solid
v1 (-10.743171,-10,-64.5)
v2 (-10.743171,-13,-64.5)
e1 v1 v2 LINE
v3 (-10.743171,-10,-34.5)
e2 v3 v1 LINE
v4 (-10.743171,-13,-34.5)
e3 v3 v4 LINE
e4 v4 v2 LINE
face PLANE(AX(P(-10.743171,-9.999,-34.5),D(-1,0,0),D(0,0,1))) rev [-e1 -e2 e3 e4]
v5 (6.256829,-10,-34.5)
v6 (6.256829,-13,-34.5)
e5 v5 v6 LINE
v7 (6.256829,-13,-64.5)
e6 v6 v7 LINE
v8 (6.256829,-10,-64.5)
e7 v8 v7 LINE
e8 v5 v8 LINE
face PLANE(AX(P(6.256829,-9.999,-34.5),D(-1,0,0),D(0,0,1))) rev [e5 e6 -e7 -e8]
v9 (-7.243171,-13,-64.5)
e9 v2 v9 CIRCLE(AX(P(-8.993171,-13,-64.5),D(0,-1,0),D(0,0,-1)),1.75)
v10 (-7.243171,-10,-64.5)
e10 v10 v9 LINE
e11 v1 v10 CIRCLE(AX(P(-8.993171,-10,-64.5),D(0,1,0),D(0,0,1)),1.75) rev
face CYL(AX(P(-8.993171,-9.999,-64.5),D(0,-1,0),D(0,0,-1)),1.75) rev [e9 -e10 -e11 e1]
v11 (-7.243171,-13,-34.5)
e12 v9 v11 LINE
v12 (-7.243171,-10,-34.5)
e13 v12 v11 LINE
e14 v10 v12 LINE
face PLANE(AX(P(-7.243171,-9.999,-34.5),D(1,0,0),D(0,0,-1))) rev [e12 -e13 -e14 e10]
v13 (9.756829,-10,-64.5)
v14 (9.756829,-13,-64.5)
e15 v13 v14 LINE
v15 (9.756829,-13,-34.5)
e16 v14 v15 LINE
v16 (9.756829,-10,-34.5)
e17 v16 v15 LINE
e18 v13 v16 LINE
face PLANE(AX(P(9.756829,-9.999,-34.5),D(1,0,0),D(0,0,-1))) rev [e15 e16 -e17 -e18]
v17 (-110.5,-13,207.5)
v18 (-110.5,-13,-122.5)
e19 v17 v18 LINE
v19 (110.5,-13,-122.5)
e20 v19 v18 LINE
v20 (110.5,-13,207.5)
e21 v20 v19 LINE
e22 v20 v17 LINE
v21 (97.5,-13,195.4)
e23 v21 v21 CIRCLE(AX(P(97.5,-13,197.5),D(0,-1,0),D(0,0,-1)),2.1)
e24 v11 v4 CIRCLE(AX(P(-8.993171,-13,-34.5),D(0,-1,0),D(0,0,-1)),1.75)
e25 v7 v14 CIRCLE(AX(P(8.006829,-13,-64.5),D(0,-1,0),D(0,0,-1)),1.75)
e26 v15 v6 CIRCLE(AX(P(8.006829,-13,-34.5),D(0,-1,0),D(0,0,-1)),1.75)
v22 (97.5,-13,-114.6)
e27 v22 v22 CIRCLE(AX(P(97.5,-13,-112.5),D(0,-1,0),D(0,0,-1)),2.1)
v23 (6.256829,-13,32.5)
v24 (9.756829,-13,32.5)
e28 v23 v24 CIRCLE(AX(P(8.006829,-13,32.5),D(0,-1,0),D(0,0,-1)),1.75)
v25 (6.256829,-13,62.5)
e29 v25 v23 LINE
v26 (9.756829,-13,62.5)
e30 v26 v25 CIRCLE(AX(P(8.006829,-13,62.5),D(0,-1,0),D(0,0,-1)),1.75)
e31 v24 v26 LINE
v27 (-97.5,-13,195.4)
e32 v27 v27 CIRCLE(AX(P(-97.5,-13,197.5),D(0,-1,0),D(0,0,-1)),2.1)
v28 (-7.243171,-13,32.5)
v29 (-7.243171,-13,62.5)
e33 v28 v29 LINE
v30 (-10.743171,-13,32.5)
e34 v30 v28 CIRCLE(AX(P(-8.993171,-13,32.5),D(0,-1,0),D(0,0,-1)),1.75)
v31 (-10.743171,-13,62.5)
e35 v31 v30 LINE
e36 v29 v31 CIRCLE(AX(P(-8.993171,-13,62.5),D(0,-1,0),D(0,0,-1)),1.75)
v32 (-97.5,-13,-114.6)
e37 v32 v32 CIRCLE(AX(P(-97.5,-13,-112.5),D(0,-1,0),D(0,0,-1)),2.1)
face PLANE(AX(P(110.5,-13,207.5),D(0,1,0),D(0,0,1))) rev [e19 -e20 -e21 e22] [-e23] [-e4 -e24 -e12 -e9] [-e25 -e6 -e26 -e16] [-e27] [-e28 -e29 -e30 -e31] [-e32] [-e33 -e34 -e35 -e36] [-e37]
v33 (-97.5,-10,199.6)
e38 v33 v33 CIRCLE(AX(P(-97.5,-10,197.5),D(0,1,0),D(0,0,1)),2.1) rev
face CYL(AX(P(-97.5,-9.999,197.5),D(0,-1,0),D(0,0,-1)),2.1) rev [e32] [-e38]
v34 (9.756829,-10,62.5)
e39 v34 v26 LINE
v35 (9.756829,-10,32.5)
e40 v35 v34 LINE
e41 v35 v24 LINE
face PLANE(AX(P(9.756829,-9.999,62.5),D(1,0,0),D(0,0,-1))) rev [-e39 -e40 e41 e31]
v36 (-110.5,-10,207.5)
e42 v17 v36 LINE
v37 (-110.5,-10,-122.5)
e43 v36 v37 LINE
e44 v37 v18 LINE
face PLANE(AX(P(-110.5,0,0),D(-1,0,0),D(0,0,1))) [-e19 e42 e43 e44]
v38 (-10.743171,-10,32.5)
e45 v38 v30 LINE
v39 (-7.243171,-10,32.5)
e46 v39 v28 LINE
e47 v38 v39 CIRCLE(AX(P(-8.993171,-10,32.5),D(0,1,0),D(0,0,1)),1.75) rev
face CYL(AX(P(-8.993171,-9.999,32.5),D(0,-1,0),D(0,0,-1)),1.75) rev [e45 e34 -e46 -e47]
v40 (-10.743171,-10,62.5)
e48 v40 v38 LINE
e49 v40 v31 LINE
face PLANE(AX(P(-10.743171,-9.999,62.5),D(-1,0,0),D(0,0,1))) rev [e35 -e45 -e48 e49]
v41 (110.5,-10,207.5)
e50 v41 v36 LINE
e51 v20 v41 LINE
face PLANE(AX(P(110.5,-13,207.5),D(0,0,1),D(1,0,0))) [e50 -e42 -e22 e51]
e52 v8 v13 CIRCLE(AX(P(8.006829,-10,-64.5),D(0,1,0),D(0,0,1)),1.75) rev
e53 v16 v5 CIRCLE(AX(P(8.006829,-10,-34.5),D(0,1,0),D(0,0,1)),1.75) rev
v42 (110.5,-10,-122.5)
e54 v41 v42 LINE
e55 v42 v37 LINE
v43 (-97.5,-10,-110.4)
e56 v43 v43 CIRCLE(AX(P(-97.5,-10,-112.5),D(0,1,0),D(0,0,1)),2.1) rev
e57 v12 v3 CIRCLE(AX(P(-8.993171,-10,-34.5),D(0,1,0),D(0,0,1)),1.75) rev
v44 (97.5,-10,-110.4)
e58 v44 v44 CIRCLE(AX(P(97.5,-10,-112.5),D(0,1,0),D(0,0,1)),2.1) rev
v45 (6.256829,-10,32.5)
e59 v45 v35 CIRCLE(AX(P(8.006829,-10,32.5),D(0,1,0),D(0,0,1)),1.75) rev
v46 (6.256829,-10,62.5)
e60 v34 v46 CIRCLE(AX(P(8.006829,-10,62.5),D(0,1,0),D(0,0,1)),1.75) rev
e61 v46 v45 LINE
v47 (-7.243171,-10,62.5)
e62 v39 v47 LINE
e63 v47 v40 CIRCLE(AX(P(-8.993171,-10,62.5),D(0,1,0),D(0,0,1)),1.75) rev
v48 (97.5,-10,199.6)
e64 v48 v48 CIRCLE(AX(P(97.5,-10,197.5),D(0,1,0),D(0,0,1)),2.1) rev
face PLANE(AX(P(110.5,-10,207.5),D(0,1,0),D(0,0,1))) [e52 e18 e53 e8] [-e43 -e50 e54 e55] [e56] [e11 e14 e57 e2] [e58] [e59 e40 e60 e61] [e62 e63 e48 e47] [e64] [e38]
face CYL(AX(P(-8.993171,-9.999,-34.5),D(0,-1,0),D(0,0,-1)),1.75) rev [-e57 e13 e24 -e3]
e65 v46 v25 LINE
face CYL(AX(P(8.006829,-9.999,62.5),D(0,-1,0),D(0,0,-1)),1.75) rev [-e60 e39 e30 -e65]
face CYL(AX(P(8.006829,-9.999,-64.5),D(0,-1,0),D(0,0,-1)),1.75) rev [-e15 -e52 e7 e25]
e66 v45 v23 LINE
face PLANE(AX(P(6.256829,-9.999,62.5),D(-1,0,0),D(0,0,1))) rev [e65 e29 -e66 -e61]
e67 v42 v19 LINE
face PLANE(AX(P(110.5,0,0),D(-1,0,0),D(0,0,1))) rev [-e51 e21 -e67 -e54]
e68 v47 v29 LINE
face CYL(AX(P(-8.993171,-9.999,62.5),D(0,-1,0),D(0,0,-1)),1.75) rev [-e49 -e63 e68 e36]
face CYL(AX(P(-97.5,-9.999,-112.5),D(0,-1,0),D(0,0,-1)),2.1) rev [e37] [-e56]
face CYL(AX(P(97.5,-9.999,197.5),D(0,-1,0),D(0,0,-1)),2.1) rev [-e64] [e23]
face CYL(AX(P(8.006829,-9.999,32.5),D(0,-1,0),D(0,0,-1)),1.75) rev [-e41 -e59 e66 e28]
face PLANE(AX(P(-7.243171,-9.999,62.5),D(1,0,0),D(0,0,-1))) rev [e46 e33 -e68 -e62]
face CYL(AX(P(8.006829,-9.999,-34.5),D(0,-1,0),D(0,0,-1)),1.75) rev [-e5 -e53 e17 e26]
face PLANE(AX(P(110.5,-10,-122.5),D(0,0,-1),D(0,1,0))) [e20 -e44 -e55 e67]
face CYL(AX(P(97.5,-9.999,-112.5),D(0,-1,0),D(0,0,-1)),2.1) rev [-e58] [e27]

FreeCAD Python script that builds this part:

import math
import FreeCAD as App
import Part
import Sketcher


def add_polygon(sketch, points):
    """Adds a closed chain of lines whose ends are joined by coincident constraints."""
    first, n = sketch.GeometryCount, len(points)
    for a, b in zip(points, points[1:] + points[:1]):
        sketch.addGeometry(Part.LineSegment(App.Vector(*a, 0), App.Vector(*b, 0)), False)
    for i in range(n):
        sketch.addConstraint(Sketcher.Constraint("Coincident", first + i, 2, first + (i + 1) % n, 1))

doc = App.newDocument("Part")
body = doc.addObject("PartDesign::Body", "Body")

sketch1 = body.newObject("Sketcher::SketchObject", "Sketch")
sketch1.AttachmentSupport = (doc.getObject("YZ_Plane"), [""])
sketch1.MapMode = "FlatFace"
add_polygon(sketch1, [(-10, 207.5), (-13, 207.5), (-13, -122.5), (-10, -122.5)])
sketch1.addConstraint(Sketcher.Constraint("Horizontal", 0))
sketch1.addConstraint(Sketcher.Constraint("Vertical", 1))
sketch1.addConstraint(Sketcher.Constraint("Horizontal", 2))
sketch1.addConstraint(Sketcher.Constraint("Vertical", 3))
sketch1.addConstraint(Sketcher.Constraint("DistanceX", 0, 2, 0, 1, 3.0))
sketch1.addConstraint(Sketcher.Constraint("DistanceY", 1, 2, 1, 1, 330.0))
sketch1.addConstraint(Sketcher.Constraint("DistanceX", 0, 2, -1, 1, 13.0))
sketch1.addConstraint(Sketcher.Constraint("DistanceY", -1, 1, 0, 2, 207.5))
pad1 = body.newObject("PartDesign::Pad", "Pad")
pad1.Profile = sketch1
pad1.Type = "TwoLengths"
pad1.Length = 110.5
pad1.Length2 = 110.5

sketch2 = body.newObject("Sketcher::SketchObject", "Sketch001")
sketch2.AttachmentSupport = (doc.getObject("XZ_Plane"), [""])
sketch2.MapMode = "FlatFace"
sketch2.AttachmentOffset = App.Placement(App.Vector(0, 0, 13), App.Rotation())
sketch2.addGeometry(Part.Circle(App.Vector(97.5, -112.5, 0), App.Vector(0, 0, 1), 2.1), False)
sketch2.addConstraint(Sketcher.Constraint("Diameter", 0, 4.2))
sketch2.addConstraint(Sketcher.Constraint("DistanceX", -1, 1, 0, 3, 97.5))
sketch2.addConstraint(Sketcher.Constraint("DistanceY", 0, 3, -1, 1, 112.5))
pocket1 = body.newObject("PartDesign::Pocket", "Pocket")
pocket1.Profile = sketch2
pocket1.Type = "UpToFirst"

sketch3 = body.newObject("Sketcher::SketchObject", "Sketch002")
sketch3.AttachmentSupport = (doc.getObject("XZ_Plane"), [""])
sketch3.MapMode = "FlatFace"
sketch3.AttachmentOffset = App.Placement(App.Vector(0, 0, 13), App.Rotation())
sketch3.addGeometry(Part.Circle(App.Vector(-97.5, -112.5, 0), App.Vector(0, 0, 1), 2.1), False)
sketch3.addConstraint(Sketcher.Constraint("Diameter", 0, 4.2))
sketch3.addConstraint(Sketcher.Constraint("DistanceX", 0, 3, -1, 1, 97.5))
sketch3.addConstraint(Sketcher.Constraint("DistanceY", 0, 3, -1, 1, 112.5))
pocket2 = body.newObject("PartDesign::Pocket", "Pocket001")
pocket2.Profile = sketch3
pocket2.Type = "UpToFirst"

sketch4 = body.newObject("Sketcher::SketchObject", "Sketch003")
sketch4.AttachmentSupport = (doc.getObject("XZ_Plane"), [""])
sketch4.MapMode = "FlatFace"
sketch4.AttachmentOffset = App.Placement(App.Vector(0, 0, 13), App.Rotation())
sketch4.addGeometry(Part.Circle(App.Vector(97.5, 197.5, 0), App.Vector(0, 0, 1), 2.1), False)
sketch4.addConstraint(Sketcher.Constraint("Diameter", 0, 4.2))
sketch4.addConstraint(Sketcher.Constraint("DistanceX", -1, 1, 0, 3, 97.5))
sketch4.addConstraint(Sketcher.Constraint("DistanceY", -1, 1, 0, 3, 197.5))
pocket3 = body.newObject("PartDesign::Pocket", "Pocket002")
pocket3.Profile = sketch4
pocket3.Type = "UpToFirst"

sketch5 = body.newObject("Sketcher::SketchObject", "Sketch004")
sketch5.AttachmentSupport = (doc.getObject("XZ_Plane"), [""])
sketch5.MapMode = "FlatFace"
sketch5.AttachmentOffset = App.Placement(App.Vector(0, 0, 13), App.Rotation())
sketch5.addGeometry(Part.Circle(App.Vector(-97.5, 197.5, 0), App.Vector(0, 0, 1), 2.1), False)
sketch5.addConstraint(Sketcher.Constraint("Diameter", 0, 4.2))
sketch5.addConstraint(Sketcher.Constraint("DistanceX", 0, 3, -1, 1, 97.5))
sketch5.addConstraint(Sketcher.Constraint("DistanceY", -1, 1, 0, 3, 197.5))
pocket4 = body.newObject("PartDesign::Pocket", "Pocket003")
pocket4.Profile = sketch5
pocket4.Type = "UpToFirst"

sketch6 = body.newObject("Sketcher::SketchObject", "Sketch005")
sketch6.AttachmentSupport = (doc.getObject("XZ_Plane"), [""])
sketch6.MapMode = "FlatFace"
sketch6.AttachmentOffset = App.Placement(App.Vector(0, 0, 13), App.Rotation())
sketch6.addGeometry(Part.LineSegment(App.Vector(-7.2, -64.5, 0), App.Vector(-7.2, -34.5, 0)), False)
sketch6.addGeometry(Part.ArcOfCircle(Part.Circle(App.Vector(-9, -34.5, 0), App.Vector(0, 0, 1), 1.8), math.radians(0), math.radians(180)), False)
sketch6.addGeometry(Part.LineSegment(App.Vector(-10.7, -34.5, 0), App.Vector(-10.7, -64.5, 0)), False)
sketch6.addGeometry(Part.ArcOfCircle(Part.Circle(App.Vector(-9, -64.5, 0), App.Vector(0, 0, 1), 1.8), math.radians(180), math.radians(360)), False)
sketch6.addConstraint(Sketcher.Constraint("Tangent", 0, 2, 1, 1))
sketch6.addConstraint(Sketcher.Constraint("Tangent", 1, 2, 2, 1))
sketch6.addConstraint(Sketcher.Constraint("Tangent", 2, 2, 3, 1))
sketch6.addConstraint(Sketcher.Constraint("Tangent", 3, 2, 0, 1))
sketch6.addConstraint(Sketcher.Constraint("Vertical", 0))
sketch6.addConstraint(Sketcher.Constraint("Vertical", 2))
sketch6.addConstraint(Sketcher.Constraint("DistanceY", 0, 1, 0, 2, 30.0))
sketch6.addConstraint(Sketcher.Constraint("Radius", 1, 1.75))
sketch6.addConstraint(Sketcher.Constraint("DistanceY", 1, 3, -1, 1, 34.5))
sketch6.addConstraint(Sketcher.Constraint("DistanceX", 1, 3, -1, 1, 8.993171))
pocket5 = body.newObject("PartDesign::Pocket", "Pocket004")
pocket5.Profile = sketch6
pocket5.Type = "UpToFirst"

sketch7 = body.newObject("Sketcher::SketchObject", "Sketch006")
sketch7.AttachmentSupport = (doc.getObject("XZ_Plane"), [""])
sketch7.MapMode = "FlatFace"
sketch7.AttachmentOffset = App.Placement(App.Vector(0, 0, 13), App.Rotation())
sketch7.addGeometry(Part.LineSegment(App.Vector(9.8, -64.5, 0), App.Vector(9.8, -34.5, 0)), False)
sketch7.addGeometry(Part.ArcOfCircle(Part.Circle(App.Vector(8, -34.5, 0), App.Vector(0, 0, 1), 1.8), math.radians(0), math.radians(180)), False)
sketch7.addGeometry(Part.LineSegment(App.Vector(6.3, -34.5, 0), App.Vector(6.3, -64.5, 0)), False)
sketch7.addGeometry(Part.ArcOfCircle(Part.Circle(App.Vector(8, -64.5, 0), App.Vector(0, 0, 1), 1.8), math.radians(180), math.radians(360)), False)
sketch7.addConstraint(Sketcher.Constraint("Tangent", 0, 2, 1, 1))
sketch7.addConstraint(Sketcher.Constraint("Tangent", 1, 2, 2, 1))
sketch7.addConstraint(Sketcher.Constraint("Tangent", 2, 2, 3, 1))
sketch7.addConstraint(Sketcher.Constraint("Tangent", 3, 2, 0, 1))
sketch7.addConstraint(Sketcher.Constraint("Vertical", 0))
sketch7.addConstraint(Sketcher.Constraint("Vertical", 2))
sketch7.addConstraint(Sketcher.Constraint("DistanceY", 0, 1, 0, 2, 30.0))
sketch7.addConstraint(Sketcher.Constraint("Radius", 1, 1.75))
sketch7.addConstraint(Sketcher.Constraint("DistanceY", 1, 3, -1, 1, 34.5))
sketch7.addConstraint(Sketcher.Constraint("DistanceX", -1, 1, 1, 3, 8.006829))
pocket6 = body.newObject("PartDesign::Pocket", "Pocket005")
pocket6.Profile = sketch7
pocket6.Type = "UpToFirst"

sketch8 = body.newObject("Sketcher::SketchObject", "Sketch007")
sketch8.AttachmentSupport = (doc.getObject("XZ_Plane"), [""])
sketch8.MapMode = "FlatFace"
sketch8.AttachmentOffset = App.Placement(App.Vector(0, 0, 13), App.Rotation())
sketch8.addGeometry(Part.LineSegment(App.Vector(9.8, 32.5, 0), App.Vector(9.8, 62.5, 0)), False)
sketch8.addGeometry(Part.ArcOfCircle(Part.Circle(App.Vector(8, 62.5, 0), App.Vector(0, 0, 1), 1.8), math.radians(0), math.radians(180)), False)
sketch8.addGeometry(Part.LineSegment(App.Vector(6.3, 62.5, 0), App.Vector(6.3, 32.5, 0)), False)
sketch8.addGeometry(Part.ArcOfCircle(Part.Circle(App.Vector(8, 32.5, 0), App.Vector(0, 0, 1), 1.8), math.radians(180), math.radians(360)), False)
sketch8.addConstraint(Sketcher.Constraint("Tangent", 0, 2, 1, 1))
sketch8.addConstraint(Sketcher.Constraint("Tangent", 1, 2, 2, 1))
sketch8.addConstraint(Sketcher.Constraint("Tangent", 2, 2, 3, 1))
sketch8.addConstraint(Sketcher.Constraint("Tangent", 3, 2, 0, 1))
sketch8.addConstraint(Sketcher.Constraint("Vertical", 0))
sketch8.addConstraint(Sketcher.Constraint("Vertical", 2))
sketch8.addConstraint(Sketcher.Constraint("DistanceY", 0, 1, 0, 2, 30.0))
sketch8.addConstraint(Sketcher.Constraint("Radius", 1, 1.75))
sketch8.addConstraint(Sketcher.Constraint("DistanceY", -1, 1, 1, 3, 62.5))
sketch8.addConstraint(Sketcher.Constraint("DistanceX", -1, 1, 1, 3, 8.006829))
pocket7 = body.newObject("PartDesign::Pocket", "Pocket006")
pocket7.Profile = sketch8
pocket7.Type = "UpToFirst"

sketch9 = body.newObject("Sketcher::SketchObject", "Sketch008")
sketch9.AttachmentSupport = (doc.getObject("XZ_Plane"), [""])
sketch9.MapMode = "FlatFace"
sketch9.AttachmentOffset = App.Placement(App.Vector(0, 0, 13), App.Rotation())
sketch9.addGeometry(Part.LineSegment(App.Vector(-7.2, 32.5, 0), App.Vector(-7.2, 62.5, 0)), False)
sketch9.addGeometry(Part.ArcOfCircle(Part.Circle(App.Vector(-9, 62.5, 0), App.Vector(0, 0, 1), 1.8), math.radians(0), math.radians(180)), False)
sketch9.addGeometry(Part.LineSegment(App.Vector(-10.7, 62.5, 0), App.Vector(-10.7, 32.5, 0)), False)
sketch9.addGeometry(Part.ArcOfCircle(Part.Circle(App.Vector(-9, 32.5, 0), App.Vector(0, 0, 1), 1.8), math.radians(180), math.radians(360)), False)
sketch9.addConstraint(Sketcher.Constraint("Tangent", 0, 2, 1, 1))
sketch9.addConstraint(Sketcher.Constraint("Tangent", 1, 2, 2, 1))
sketch9.addConstraint(Sketcher.Constraint("Tangent", 2, 2, 3, 1))
sketch9.addConstraint(Sketcher.Constraint("Tangent", 3, 2, 0, 1))
sketch9.addConstraint(Sketcher.Constraint("Vertical", 0))
sketch9.addConstraint(Sketcher.Constraint("Vertical", 2))
sketch9.addConstraint(Sketcher.Constraint("DistanceY", 0, 1, 0, 2, 30.0))
sketch9.addConstraint(Sketcher.Constraint("Radius", 1, 1.75))
sketch9.addConstraint(Sketcher.Constraint("DistanceY", -1, 1, 1, 3, 62.5))
sketch9.addConstraint(Sketcher.Constraint("DistanceX", 1, 3, -1, 1, 8.993171))
pocket8 = body.newObject("PartDesign::Pocket", "Pocket007")
pocket8.Profile = sketch9
pocket8.Type = "UpToFirst"

doc.recompute()
